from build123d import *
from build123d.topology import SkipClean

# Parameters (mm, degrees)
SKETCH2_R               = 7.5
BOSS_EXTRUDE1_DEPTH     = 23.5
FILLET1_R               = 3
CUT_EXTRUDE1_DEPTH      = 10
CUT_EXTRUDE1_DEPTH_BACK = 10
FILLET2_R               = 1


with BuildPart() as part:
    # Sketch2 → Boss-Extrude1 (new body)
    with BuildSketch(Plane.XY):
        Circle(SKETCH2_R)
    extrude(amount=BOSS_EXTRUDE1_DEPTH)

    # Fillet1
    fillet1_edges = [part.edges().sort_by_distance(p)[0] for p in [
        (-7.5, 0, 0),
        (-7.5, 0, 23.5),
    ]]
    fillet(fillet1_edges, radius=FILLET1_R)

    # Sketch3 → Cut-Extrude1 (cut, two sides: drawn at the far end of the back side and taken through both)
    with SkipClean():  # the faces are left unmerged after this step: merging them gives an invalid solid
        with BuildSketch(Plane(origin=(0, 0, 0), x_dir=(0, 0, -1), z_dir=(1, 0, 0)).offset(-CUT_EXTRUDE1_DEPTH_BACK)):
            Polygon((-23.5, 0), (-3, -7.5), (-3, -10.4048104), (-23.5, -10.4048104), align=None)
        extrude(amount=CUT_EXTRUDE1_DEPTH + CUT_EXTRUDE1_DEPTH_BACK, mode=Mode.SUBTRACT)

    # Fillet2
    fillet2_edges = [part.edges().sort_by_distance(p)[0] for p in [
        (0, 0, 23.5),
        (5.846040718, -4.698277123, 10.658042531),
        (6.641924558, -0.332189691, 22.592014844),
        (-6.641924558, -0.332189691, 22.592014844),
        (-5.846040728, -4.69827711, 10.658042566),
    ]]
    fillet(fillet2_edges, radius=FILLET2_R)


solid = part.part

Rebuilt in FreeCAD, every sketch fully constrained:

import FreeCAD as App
import Part
import Sketcher

V = App.Vector
Q = App.Units.Quantity


def edges_at(feature, points):
    """Names of the edges that pass closest to the given points."""
    edges = feature.Shape.Edges
    near = lambda p: min(range(len(edges)), key=lambda i: edges[i].distToShape(Part.Vertex(*p))[0])
    return sorted({f"Edge{near(p) + 1}" for p in points})


def add_polygon(sketch, points):
    """Adds a closed chain of lines whose ends are joined by coincident constraints."""
    first, n = sketch.GeometryCount, len(points)
    for a, b in zip(points, points[1:] + points[:1]):
        sketch.addGeometry(Part.LineSegment(App.Vector(*a, 0), App.Vector(*b, 0)), False)
    for i in range(n):
        sketch.addConstraint(Sketcher.Constraint("Coincident", first + i, 2, first + (i + 1) % n, 1))

doc = App.newDocument("Part")
body = doc.addObject("PartDesign::Body", "Body")

sketch1 = body.newObject("Sketcher::SketchObject", "Sketch")
sketch1.AttachmentSupport = (doc.getObject("XY_Plane"), [""])
sketch1.MapMode = "FlatFace"
sketch1.addGeometry(Part.Circle(V(0, 0, 0), V(0, 0, 1), 8), False)
sketch1.addConstraint([
    Sketcher.Constraint("Coincident", 0, 3, -1, 1),
    Sketcher.Constraint("Diameter", 0, Q("15 mm")),
])
pad1 = body.newObject("PartDesign::Pad", "Pad")
pad1.Profile = sketch1
pad1.Length = 23.5
doc.recompute()

fillet = body.newObject("PartDesign::Fillet", "Fillet")
fillet.Base = (pad1, edges_at(pad1, [(-7.5, 0, 0), (-7.5, 0, 23.5)]))
fillet.Radius = 3

sketch2 = body.newObject("Sketcher::SketchObject", "Sketch001")
sketch2.AttachmentSupport = (doc.getObject("YZ_Plane"), [""])
sketch2.MapMode = "FlatFace"
add_polygon(sketch2, [(-7.5, 3), (0, 23.5), (-10.4, 23.5), (-10.4, 3)])
sketch2.addConstraint([
    Sketcher.Constraint("Horizontal", 1),
    Sketcher.Constraint("Vertical", 2),
    Sketcher.Constraint("Horizontal", 3),
    Sketcher.Constraint("PointOnObject", 0, 2, -2),
    Sketcher.Constraint("DistanceY", 2, 2, 2, 1, Q("20.5 mm")),
    Sketcher.Constraint("DistanceY", -1, 1, 2, 2, Q("3 mm")),
    Sketcher.Constraint("DistanceX", 3, 2, -1, 1, Q("7.5 mm")),
    Sketcher.Constraint("DistanceX", 1, 2, 1, 1, Q("10.40481 mm")),
])
pocket1 = body.newObject("PartDesign::Pocket", "Pocket")
pocket1.Profile = sketch2
pocket1.Type = "ThroughAll"
pocket1.Midplane = True
doc.recompute()

fillet2 = body.newObject("PartDesign::Fillet", "Fillet001")
fillet2.Base = (pocket1, edges_at(pocket1, [
    (0, 0, 23.5),
    (5.846, -4.698, 10.658),
    (6.642, -0.332, 22.592),
    (-6.642, -0.332, 22.592),
    (-5.846, -4.698, 10.658),
]))
fillet2.Radius = 1

doc.recompute()
